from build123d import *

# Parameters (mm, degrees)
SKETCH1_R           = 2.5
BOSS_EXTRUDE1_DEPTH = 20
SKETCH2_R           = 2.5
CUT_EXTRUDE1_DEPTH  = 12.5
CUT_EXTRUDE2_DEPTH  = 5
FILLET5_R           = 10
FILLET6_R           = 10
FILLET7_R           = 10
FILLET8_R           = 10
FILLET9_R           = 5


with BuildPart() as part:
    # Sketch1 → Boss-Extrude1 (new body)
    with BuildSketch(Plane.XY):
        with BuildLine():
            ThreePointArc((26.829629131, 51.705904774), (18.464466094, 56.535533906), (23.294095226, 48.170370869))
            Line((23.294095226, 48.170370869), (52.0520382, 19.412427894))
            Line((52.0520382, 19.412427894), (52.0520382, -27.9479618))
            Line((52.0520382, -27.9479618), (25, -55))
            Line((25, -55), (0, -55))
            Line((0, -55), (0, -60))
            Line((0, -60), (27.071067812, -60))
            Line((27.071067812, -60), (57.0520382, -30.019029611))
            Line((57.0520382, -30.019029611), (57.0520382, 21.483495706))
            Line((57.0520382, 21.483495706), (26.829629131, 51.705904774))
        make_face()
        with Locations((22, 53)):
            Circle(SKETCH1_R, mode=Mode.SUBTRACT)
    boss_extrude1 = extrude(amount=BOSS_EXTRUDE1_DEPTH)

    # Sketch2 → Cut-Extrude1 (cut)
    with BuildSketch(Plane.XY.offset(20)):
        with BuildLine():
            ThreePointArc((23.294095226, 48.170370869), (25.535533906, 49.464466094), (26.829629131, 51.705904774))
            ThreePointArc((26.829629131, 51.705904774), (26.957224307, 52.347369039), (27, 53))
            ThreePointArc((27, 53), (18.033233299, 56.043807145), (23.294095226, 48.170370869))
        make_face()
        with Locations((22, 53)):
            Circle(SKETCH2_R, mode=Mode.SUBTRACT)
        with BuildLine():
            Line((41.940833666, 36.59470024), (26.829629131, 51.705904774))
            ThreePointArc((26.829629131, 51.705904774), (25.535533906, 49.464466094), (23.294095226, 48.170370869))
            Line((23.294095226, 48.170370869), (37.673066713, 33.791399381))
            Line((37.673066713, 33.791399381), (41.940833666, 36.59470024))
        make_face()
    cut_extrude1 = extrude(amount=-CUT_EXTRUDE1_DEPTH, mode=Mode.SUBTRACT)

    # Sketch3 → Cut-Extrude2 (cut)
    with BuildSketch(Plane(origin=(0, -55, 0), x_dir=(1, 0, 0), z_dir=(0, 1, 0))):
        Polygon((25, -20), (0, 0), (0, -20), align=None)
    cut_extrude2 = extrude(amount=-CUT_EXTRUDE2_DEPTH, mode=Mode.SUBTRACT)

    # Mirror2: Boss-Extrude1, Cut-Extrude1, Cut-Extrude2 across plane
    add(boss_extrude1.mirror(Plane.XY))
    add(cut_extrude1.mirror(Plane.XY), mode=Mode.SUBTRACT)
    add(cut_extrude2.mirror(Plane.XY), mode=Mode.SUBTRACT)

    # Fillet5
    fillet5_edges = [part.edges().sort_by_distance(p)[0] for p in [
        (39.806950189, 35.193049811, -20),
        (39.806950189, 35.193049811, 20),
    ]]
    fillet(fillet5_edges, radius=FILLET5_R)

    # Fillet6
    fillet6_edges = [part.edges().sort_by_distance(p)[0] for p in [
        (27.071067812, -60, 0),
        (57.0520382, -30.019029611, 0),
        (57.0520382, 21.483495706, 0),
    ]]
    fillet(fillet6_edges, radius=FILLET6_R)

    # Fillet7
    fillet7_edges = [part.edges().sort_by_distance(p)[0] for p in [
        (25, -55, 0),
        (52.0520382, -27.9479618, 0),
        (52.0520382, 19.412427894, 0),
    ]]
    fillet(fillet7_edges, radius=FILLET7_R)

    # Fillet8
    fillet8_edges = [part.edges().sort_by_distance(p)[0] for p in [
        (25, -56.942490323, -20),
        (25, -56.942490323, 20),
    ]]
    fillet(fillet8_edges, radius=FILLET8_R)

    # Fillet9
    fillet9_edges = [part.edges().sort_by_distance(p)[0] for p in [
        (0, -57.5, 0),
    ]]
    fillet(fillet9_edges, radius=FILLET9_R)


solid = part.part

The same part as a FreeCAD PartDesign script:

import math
import FreeCAD as App
import Part
import Sketcher
Q = App.Units.Quantity


def edges_at(feature, points):
    """Names of the edges that pass closest to the given points."""
    edges = feature.Shape.Edges
    near = lambda p: min(range(len(edges)), key=lambda i: edges[i].distToShape(Part.Vertex(*p))[0])
    return sorted({f"Edge{near(p) + 1}" for p in points})


def add_polygon(sketch, points):
    """Adds a closed chain of lines whose ends are joined by coincident constraints."""
    first, n = sketch.GeometryCount, len(points)
    for a, b in zip(points, points[1:] + points[:1]):
        sketch.addGeometry(Part.LineSegment(App.Vector(*a, 0), App.Vector(*b, 0)), False)
    for i in range(n):
        sketch.addConstraint(Sketcher.Constraint("Coincident", first + i, 2, first + (i + 1) % n, 1))

doc = App.newDocument("Part")
params = doc.addObject("Spreadsheet::Sheet", "Params")
for row, (alias, value) in enumerate([
    ("sketch1_diameter", "5 mm"),
    ("sketch1_radius", "5 mm"),
    ("sketch1_width", "25 mm"),
    ("sketch1_height", "5 mm"),
    ("pad1_length", "20 mm"),
    ("sketch2_diameter", "5 mm"),
    ("sketch2_radius", "5 mm"),
    ("pocket1_length", "12.5 mm"),
    ("sketch3_width", "25 mm"),
    ("sketch3_height", "20 mm"),
    ("pocket2_length", "5 mm"),
    ("fillet_radius", "10 mm"),
    ("fillet2_radius", "10 mm"),
    ("fillet3_radius", "10 mm"),
    ("fillet4_radius", "10 mm"),
    ("fillet5_radius", "5 mm"),
], start=1):
    params.set(f"A{row}", alias)
    params.set(f"B{row}", "=" + value)
    params.setAlias(f"B{row}", alias)

body = doc.addObject("PartDesign::Body", "Body")

# Sketch on XY plane
sketch1 = doc.addObject("Sketcher::SketchObject", "Sketch")
body.addObject(sketch1)
sketch1.AttachmentSupport = (doc.XY_Plane, [""])
sketch1.MapMode = "FlatFace"
sketch1.addGeometry(Part.ArcOfCircle(Part.Circle(App.Vector(22, 53, 0), App.Vector(0, 0, 1), 5), math.radians(-15), math.radians(285)), False)
sketch1.addGeometry(Part.LineSegment(App.Vector(23.3, 48.2, 0), App.Vector(52.1, 19.4, 0)), False)
sketch1.addGeometry(Part.LineSegment(App.Vector(52.1, 19.4, 0), App.Vector(52.1, -27.9, 0)), False)
sketch1.addGeometry(Part.LineSegment(App.Vector(52.1, -27.9, 0), App.Vector(25, -55, 0)), False)
sketch1.addGeometry(Part.LineSegment(App.Vector(25, -55, 0), App.Vector(0, -55, 0)), False)
sketch1.addGeometry(Part.LineSegment(App.Vector(0, -55, 0), App.Vector(0, -60, 0)), False)
sketch1.addGeometry(Part.LineSegment(App.Vector(0, -60, 0), App.Vector(27.1, -60, 0)), False)
sketch1.addGeometry(Part.LineSegment(App.Vector(27.1, -60, 0), App.Vector(57.1, -30, 0)), False)
sketch1.addGeometry(Part.LineSegment(App.Vector(57.1, -30, 0), App.Vector(57.1, 21.5, 0)), False)
sketch1.addGeometry(Part.LineSegment(App.Vector(57.1, 21.5, 0), App.Vector(26.8, 51.7, 0)), False)
sketch1.addGeometry(Part.Circle(App.Vector(22, 53, 0), App.Vector(0, 0, 1), 2.5), False)
sketch1.addConstraint(Sketcher.Constraint("Coincident", 0, 2, 1, 1))
sketch1.addConstraint(Sketcher.Constraint("Coincident", 1, 2, 2, 1))
sketch1.addConstraint(Sketcher.Constraint("Coincident", 2, 2, 3, 1))
sketch1.addConstraint(Sketcher.Constraint("Coincident", 3, 2, 4, 1))
sketch1.addConstraint(Sketcher.Constraint("Coincident", 4, 2, 5, 1))
sketch1.addConstraint(Sketcher.Constraint("Coincident", 5, 2, 6, 1))
sketch1.addConstraint(Sketcher.Constraint("Coincident", 6, 2, 7, 1))
sketch1.addConstraint(Sketcher.Constraint("Coincident", 7, 2, 8, 1))
sketch1.addConstraint(Sketcher.Constraint("Coincident", 8, 2, 9, 1))
sketch1.addConstraint(Sketcher.Constraint("Coincident", 9, 2, 0, 1))
sketch1.addConstraint(Sketcher.Constraint("Vertical", 2))
sketch1.addConstraint(Sketcher.Constraint("Horizontal", 4))
sketch1.addConstraint(Sketcher.Constraint("Vertical", 5))
sketch1.addConstraint(Sketcher.Constraint("Horizontal", 6))
sketch1.addConstraint(Sketcher.Constraint("Vertical", 8))
sketch1.addConstraint(Sketcher.Constraint("Coincident", 10, 3, 0, 3))
sketch1.addConstraint(Sketcher.Constraint("PointOnObject", 4, 2, -2))
sketch1.addConstraint(Sketcher.Constraint("Perpendicular", 1, 3))
sketch1.addConstraint(Sketcher.Constraint("Parallel", 3, 7))
sketch1.addConstraint(Sketcher.Constraint("Perpendicular", 7, 9))
sketch1.addConstraint(Sketcher.Constraint("Diameter", 10, Q("5 mm")))
sketch1.addConstraint(Sketcher.Constraint("Radius", 0, Q("5 mm")))
sketch1.addConstraint(Sketcher.Constraint("DistanceX", 4, 2, 4, 1, Q("25 mm")))
sketch1.addConstraint(Sketcher.Constraint("DistanceY", 5, 2, 5, 1, Q("5 mm")))
sketch1.addConstraint(Sketcher.Constraint("Angle", 1, Q("-45 deg")))
sketch1.addConstraint(Sketcher.Constraint("DistanceX", -1, 1, 0, 3, Q("22 mm")))
sketch1.addConstraint(Sketcher.Constraint("DistanceY", -1, 1, 0, 3, Q("53 mm")))
sketch1.addConstraint(Sketcher.Constraint("DistanceY", 3, 2, -1, 1, Q("55 mm")))
sketch1.addConstraint(Sketcher.Constraint("DistanceX", 2, 2, 7, 2, Q("5 mm")))
sketch1.addConstraint(Sketcher.Constraint("DistanceY", 2, 2, 2, 1, Q("47.36039 mm")))
sketch1.addConstraint(Sketcher.Constraint("Distance", 3, Q("38.257359 mm")))
sketch1.addConstraint(Sketcher.Constraint("Distance", 9, Q("42.740941 mm")))
sketch1.addConstraint(Sketcher.Constraint("DistanceX", 6, 1, 6, 2, Q("27.071068 mm")))
sketch1.setExpression("Constraints[20]", "Params.sketch1_diameter")
sketch1.setExpression("Constraints[21]", "Params.sketch1_radius")
sketch1.setExpression("Constraints[22]", "Params.sketch1_width")
sketch1.setExpression("Constraints[23]", "Params.sketch1_height")
pad1 = doc.addObject("PartDesign::Pad", "Pad")
body.addObject(pad1)
pad1.Profile = sketch1
pad1.setExpression("Length", "Params.pad1_length")

# Sketch on XY plane
sketch2 = doc.addObject("Sketcher::SketchObject", "Sketch001")
body.addObject(sketch2)
sketch2.AttachmentSupport = (doc.XY_Plane, [""])
sketch2.MapMode = "FlatFace"
sketch2.AttachmentOffset = App.Placement(App.Vector(0, 0, 20), App.Rotation())
sketch2.addGeometry(Part.ArcOfCircle(Part.Circle(App.Vector(22, 53, 0), App.Vector(0, 0, 1), 5), math.radians(0), math.radians(285)), False)
sketch2.addGeometry(Part.LineSegment(App.Vector(23.3, 48.2, 0), App.Vector(37.7, 33.8, 0)), False)
sketch2.addGeometry(Part.LineSegment(App.Vector(37.7, 33.8, 0), App.Vector(41.9, 36.6, 0)), False)
sketch2.addGeometry(Part.LineSegment(App.Vector(41.9, 36.6, 0), App.Vector(26.8, 51.7, 0)), False)
sketch2.addGeometry(Part.ArcOfCircle(Part.Circle(App.Vector(22, 53, 0), App.Vector(0, 0, 1), 5), math.radians(-15), math.radians(0)), False)
sketch2.addGeometry(Part.Circle(App.Vector(22, 53, 0), App.Vector(0, 0, 1), 2.5), False)
sketch2.addConstraint(Sketcher.Constraint("Coincident", 0, 2, 1, 1))
sketch2.addConstraint(Sketcher.Constraint("Coincident", 1, 2, 2, 1))
sketch2.addConstraint(Sketcher.Constraint("Coincident", 2, 2, 3, 1))
sketch2.addConstraint(Sketcher.Constraint("Coincident", 3, 2, 4, 1))
sketch2.addConstraint(Sketcher.Constraint("Tangent", 4, 2, 0, 1))
sketch2.addConstraint(Sketcher.Constraint("Coincident", 5, 3, 0, 3))
sketch2.addConstraint(Sketcher.Constraint("Equal", 0, 4))
sketch2.addConstraint(Sketcher.Constraint("Parallel", 1, 3))
sketch2.addConstraint(Sketcher.Constraint("Horizontal", 5, 3, 4, 2))
sketch2.addConstraint(Sketcher.Constraint("Diameter", 5, Q("5 mm")))
sketch2.addConstraint(Sketcher.Constraint("Radius", 0, Q("5 mm")))
sketch2.addConstraint(Sketcher.Constraint("Angle", 1, Q("-45 deg")))
sketch2.addConstraint(Sketcher.Constraint("DistanceX", -1, 1, 0, 3, Q("22 mm")))
sketch2.addConstraint(Sketcher.Constraint("DistanceY", -1, 1, 0, 3, Q("53 mm")))
sketch2.addConstraint(Sketcher.Constraint("DistanceY", -1, 1, 1, 2, Q("33.791399 mm")))
sketch2.addConstraint(Sketcher.Constraint("DistanceY", -1, 1, 2, 2, Q("36.5947 mm")))
sketch2.addConstraint(Sketcher.Constraint("Distance", 3, Q("21.37047 mm")))
sketch2.addConstraint(Sketcher.Constraint("DistanceY", -1, 1, 0, 2, Q("48.170371 mm")))
sketch2.setExpression("Constraints[9]", "Params.sketch2_diameter")
sketch2.setExpression("Constraints[10]", "Params.sketch2_radius")
pocket1 = doc.addObject("PartDesign::Pocket", "Pocket")
body.addObject(pocket1)
pocket1.Profile = sketch2
pocket1.setExpression("Length", "Params.pocket1_length")

# Sketch on XZ plane
sketch3 = doc.addObject("Sketcher::SketchObject", "Sketch002")
body.addObject(sketch3)
sketch3.AttachmentSupport = (doc.XZ_Plane, [""])
sketch3.MapMode = "FlatFace"
sketch3.AttachmentOffset = App.Placement(App.Vector(0, 0, 55), App.Rotation())
add_polygon(sketch3, [(25, 20), (0, 0), (0, 20)])  # lines 0-2
sketch3.addConstraint(Sketcher.Constraint("Vertical", 1))
sketch3.addConstraint(Sketcher.Constraint("Horizontal", 2))
sketch3.addConstraint(Sketcher.Constraint("Coincident", 0, 2, -1, 1))
sketch3.addConstraint(Sketcher.Constraint("DistanceX", 2, 1, 2, 2, Q("25 mm")))
sketch3.addConstraint(Sketcher.Constraint("DistanceY", 1, 1, 1, 2, Q("20 mm")))
sketch3.setExpression("Constraints[6]", "Params.sketch3_width")
sketch3.setExpression("Constraints[7]", "Params.sketch3_height")
pocket2 = doc.addObject("PartDesign::Pocket", "Pocket001")
body.addObject(pocket2)
pocket2.Profile = sketch3
pocket2.setExpression("Length", "Params.pocket2_length")
pocket2.Reversed = True
doc.recompute()

mirrored = doc.addObject("PartDesign::Mirrored", "Mirrored")
body.addObject(mirrored)
mirrored.Originals = [pad1, pocket1, pocket2]
mirrored.MirrorPlane = (doc.XY_Plane, [""])
body.Tip = mirrored
doc.recompute()

fillet = doc.addObject("PartDesign::Fillet", "Fillet")
body.addObject(fillet)
fillet.Base = (mirrored, edges_at(mirrored, [(39.807, 35.193, -20), (39.807, 35.193, 20)]))
fillet.setExpression("Radius", "Params.fillet_radius")
doc.recompute()

fillet2 = doc.addObject("PartDesign::Fillet", "Fillet001")
body.addObject(fillet2)
fillet2.Base = (fillet, edges_at(fillet, [(27.071, -60, 0), (57.052, -30.019, 0), (57.052, 21.483, 0)]))
fillet2.setExpression("Radius", "Params.fillet2_radius")
doc.recompute()

fillet3 = doc.addObject("PartDesign::Fillet", "Fillet002")
body.addObject(fillet3)
fillet3.Base = (fillet2, edges_at(fillet2, [(25, -55, 0), (52.052, -27.948, 0), (52.052, 19.412, 0)]))
fillet3.setExpression("Radius", "Params.fillet3_radius")
doc.recompute()

fillet4 = doc.addObject("PartDesign::Fillet", "Fillet003")
body.addObject(fillet4)
fillet4.Base = (fillet3, edges_at(fillet3, [(25, -56.942, -20), (25, -56.942, 20)]))
fillet4.setExpression("Radius", "Params.fillet4_radius")
doc.recompute()

fillet5 = doc.addObject("PartDesign::Fillet", "Fillet004")
body.addObject(fillet5)
fillet5.Base = (fillet4, edges_at(fillet4, [(0, -57.5, 0)]))
fillet5.setExpression("Radius", "Params.fillet5_radius")

doc.recompute()
